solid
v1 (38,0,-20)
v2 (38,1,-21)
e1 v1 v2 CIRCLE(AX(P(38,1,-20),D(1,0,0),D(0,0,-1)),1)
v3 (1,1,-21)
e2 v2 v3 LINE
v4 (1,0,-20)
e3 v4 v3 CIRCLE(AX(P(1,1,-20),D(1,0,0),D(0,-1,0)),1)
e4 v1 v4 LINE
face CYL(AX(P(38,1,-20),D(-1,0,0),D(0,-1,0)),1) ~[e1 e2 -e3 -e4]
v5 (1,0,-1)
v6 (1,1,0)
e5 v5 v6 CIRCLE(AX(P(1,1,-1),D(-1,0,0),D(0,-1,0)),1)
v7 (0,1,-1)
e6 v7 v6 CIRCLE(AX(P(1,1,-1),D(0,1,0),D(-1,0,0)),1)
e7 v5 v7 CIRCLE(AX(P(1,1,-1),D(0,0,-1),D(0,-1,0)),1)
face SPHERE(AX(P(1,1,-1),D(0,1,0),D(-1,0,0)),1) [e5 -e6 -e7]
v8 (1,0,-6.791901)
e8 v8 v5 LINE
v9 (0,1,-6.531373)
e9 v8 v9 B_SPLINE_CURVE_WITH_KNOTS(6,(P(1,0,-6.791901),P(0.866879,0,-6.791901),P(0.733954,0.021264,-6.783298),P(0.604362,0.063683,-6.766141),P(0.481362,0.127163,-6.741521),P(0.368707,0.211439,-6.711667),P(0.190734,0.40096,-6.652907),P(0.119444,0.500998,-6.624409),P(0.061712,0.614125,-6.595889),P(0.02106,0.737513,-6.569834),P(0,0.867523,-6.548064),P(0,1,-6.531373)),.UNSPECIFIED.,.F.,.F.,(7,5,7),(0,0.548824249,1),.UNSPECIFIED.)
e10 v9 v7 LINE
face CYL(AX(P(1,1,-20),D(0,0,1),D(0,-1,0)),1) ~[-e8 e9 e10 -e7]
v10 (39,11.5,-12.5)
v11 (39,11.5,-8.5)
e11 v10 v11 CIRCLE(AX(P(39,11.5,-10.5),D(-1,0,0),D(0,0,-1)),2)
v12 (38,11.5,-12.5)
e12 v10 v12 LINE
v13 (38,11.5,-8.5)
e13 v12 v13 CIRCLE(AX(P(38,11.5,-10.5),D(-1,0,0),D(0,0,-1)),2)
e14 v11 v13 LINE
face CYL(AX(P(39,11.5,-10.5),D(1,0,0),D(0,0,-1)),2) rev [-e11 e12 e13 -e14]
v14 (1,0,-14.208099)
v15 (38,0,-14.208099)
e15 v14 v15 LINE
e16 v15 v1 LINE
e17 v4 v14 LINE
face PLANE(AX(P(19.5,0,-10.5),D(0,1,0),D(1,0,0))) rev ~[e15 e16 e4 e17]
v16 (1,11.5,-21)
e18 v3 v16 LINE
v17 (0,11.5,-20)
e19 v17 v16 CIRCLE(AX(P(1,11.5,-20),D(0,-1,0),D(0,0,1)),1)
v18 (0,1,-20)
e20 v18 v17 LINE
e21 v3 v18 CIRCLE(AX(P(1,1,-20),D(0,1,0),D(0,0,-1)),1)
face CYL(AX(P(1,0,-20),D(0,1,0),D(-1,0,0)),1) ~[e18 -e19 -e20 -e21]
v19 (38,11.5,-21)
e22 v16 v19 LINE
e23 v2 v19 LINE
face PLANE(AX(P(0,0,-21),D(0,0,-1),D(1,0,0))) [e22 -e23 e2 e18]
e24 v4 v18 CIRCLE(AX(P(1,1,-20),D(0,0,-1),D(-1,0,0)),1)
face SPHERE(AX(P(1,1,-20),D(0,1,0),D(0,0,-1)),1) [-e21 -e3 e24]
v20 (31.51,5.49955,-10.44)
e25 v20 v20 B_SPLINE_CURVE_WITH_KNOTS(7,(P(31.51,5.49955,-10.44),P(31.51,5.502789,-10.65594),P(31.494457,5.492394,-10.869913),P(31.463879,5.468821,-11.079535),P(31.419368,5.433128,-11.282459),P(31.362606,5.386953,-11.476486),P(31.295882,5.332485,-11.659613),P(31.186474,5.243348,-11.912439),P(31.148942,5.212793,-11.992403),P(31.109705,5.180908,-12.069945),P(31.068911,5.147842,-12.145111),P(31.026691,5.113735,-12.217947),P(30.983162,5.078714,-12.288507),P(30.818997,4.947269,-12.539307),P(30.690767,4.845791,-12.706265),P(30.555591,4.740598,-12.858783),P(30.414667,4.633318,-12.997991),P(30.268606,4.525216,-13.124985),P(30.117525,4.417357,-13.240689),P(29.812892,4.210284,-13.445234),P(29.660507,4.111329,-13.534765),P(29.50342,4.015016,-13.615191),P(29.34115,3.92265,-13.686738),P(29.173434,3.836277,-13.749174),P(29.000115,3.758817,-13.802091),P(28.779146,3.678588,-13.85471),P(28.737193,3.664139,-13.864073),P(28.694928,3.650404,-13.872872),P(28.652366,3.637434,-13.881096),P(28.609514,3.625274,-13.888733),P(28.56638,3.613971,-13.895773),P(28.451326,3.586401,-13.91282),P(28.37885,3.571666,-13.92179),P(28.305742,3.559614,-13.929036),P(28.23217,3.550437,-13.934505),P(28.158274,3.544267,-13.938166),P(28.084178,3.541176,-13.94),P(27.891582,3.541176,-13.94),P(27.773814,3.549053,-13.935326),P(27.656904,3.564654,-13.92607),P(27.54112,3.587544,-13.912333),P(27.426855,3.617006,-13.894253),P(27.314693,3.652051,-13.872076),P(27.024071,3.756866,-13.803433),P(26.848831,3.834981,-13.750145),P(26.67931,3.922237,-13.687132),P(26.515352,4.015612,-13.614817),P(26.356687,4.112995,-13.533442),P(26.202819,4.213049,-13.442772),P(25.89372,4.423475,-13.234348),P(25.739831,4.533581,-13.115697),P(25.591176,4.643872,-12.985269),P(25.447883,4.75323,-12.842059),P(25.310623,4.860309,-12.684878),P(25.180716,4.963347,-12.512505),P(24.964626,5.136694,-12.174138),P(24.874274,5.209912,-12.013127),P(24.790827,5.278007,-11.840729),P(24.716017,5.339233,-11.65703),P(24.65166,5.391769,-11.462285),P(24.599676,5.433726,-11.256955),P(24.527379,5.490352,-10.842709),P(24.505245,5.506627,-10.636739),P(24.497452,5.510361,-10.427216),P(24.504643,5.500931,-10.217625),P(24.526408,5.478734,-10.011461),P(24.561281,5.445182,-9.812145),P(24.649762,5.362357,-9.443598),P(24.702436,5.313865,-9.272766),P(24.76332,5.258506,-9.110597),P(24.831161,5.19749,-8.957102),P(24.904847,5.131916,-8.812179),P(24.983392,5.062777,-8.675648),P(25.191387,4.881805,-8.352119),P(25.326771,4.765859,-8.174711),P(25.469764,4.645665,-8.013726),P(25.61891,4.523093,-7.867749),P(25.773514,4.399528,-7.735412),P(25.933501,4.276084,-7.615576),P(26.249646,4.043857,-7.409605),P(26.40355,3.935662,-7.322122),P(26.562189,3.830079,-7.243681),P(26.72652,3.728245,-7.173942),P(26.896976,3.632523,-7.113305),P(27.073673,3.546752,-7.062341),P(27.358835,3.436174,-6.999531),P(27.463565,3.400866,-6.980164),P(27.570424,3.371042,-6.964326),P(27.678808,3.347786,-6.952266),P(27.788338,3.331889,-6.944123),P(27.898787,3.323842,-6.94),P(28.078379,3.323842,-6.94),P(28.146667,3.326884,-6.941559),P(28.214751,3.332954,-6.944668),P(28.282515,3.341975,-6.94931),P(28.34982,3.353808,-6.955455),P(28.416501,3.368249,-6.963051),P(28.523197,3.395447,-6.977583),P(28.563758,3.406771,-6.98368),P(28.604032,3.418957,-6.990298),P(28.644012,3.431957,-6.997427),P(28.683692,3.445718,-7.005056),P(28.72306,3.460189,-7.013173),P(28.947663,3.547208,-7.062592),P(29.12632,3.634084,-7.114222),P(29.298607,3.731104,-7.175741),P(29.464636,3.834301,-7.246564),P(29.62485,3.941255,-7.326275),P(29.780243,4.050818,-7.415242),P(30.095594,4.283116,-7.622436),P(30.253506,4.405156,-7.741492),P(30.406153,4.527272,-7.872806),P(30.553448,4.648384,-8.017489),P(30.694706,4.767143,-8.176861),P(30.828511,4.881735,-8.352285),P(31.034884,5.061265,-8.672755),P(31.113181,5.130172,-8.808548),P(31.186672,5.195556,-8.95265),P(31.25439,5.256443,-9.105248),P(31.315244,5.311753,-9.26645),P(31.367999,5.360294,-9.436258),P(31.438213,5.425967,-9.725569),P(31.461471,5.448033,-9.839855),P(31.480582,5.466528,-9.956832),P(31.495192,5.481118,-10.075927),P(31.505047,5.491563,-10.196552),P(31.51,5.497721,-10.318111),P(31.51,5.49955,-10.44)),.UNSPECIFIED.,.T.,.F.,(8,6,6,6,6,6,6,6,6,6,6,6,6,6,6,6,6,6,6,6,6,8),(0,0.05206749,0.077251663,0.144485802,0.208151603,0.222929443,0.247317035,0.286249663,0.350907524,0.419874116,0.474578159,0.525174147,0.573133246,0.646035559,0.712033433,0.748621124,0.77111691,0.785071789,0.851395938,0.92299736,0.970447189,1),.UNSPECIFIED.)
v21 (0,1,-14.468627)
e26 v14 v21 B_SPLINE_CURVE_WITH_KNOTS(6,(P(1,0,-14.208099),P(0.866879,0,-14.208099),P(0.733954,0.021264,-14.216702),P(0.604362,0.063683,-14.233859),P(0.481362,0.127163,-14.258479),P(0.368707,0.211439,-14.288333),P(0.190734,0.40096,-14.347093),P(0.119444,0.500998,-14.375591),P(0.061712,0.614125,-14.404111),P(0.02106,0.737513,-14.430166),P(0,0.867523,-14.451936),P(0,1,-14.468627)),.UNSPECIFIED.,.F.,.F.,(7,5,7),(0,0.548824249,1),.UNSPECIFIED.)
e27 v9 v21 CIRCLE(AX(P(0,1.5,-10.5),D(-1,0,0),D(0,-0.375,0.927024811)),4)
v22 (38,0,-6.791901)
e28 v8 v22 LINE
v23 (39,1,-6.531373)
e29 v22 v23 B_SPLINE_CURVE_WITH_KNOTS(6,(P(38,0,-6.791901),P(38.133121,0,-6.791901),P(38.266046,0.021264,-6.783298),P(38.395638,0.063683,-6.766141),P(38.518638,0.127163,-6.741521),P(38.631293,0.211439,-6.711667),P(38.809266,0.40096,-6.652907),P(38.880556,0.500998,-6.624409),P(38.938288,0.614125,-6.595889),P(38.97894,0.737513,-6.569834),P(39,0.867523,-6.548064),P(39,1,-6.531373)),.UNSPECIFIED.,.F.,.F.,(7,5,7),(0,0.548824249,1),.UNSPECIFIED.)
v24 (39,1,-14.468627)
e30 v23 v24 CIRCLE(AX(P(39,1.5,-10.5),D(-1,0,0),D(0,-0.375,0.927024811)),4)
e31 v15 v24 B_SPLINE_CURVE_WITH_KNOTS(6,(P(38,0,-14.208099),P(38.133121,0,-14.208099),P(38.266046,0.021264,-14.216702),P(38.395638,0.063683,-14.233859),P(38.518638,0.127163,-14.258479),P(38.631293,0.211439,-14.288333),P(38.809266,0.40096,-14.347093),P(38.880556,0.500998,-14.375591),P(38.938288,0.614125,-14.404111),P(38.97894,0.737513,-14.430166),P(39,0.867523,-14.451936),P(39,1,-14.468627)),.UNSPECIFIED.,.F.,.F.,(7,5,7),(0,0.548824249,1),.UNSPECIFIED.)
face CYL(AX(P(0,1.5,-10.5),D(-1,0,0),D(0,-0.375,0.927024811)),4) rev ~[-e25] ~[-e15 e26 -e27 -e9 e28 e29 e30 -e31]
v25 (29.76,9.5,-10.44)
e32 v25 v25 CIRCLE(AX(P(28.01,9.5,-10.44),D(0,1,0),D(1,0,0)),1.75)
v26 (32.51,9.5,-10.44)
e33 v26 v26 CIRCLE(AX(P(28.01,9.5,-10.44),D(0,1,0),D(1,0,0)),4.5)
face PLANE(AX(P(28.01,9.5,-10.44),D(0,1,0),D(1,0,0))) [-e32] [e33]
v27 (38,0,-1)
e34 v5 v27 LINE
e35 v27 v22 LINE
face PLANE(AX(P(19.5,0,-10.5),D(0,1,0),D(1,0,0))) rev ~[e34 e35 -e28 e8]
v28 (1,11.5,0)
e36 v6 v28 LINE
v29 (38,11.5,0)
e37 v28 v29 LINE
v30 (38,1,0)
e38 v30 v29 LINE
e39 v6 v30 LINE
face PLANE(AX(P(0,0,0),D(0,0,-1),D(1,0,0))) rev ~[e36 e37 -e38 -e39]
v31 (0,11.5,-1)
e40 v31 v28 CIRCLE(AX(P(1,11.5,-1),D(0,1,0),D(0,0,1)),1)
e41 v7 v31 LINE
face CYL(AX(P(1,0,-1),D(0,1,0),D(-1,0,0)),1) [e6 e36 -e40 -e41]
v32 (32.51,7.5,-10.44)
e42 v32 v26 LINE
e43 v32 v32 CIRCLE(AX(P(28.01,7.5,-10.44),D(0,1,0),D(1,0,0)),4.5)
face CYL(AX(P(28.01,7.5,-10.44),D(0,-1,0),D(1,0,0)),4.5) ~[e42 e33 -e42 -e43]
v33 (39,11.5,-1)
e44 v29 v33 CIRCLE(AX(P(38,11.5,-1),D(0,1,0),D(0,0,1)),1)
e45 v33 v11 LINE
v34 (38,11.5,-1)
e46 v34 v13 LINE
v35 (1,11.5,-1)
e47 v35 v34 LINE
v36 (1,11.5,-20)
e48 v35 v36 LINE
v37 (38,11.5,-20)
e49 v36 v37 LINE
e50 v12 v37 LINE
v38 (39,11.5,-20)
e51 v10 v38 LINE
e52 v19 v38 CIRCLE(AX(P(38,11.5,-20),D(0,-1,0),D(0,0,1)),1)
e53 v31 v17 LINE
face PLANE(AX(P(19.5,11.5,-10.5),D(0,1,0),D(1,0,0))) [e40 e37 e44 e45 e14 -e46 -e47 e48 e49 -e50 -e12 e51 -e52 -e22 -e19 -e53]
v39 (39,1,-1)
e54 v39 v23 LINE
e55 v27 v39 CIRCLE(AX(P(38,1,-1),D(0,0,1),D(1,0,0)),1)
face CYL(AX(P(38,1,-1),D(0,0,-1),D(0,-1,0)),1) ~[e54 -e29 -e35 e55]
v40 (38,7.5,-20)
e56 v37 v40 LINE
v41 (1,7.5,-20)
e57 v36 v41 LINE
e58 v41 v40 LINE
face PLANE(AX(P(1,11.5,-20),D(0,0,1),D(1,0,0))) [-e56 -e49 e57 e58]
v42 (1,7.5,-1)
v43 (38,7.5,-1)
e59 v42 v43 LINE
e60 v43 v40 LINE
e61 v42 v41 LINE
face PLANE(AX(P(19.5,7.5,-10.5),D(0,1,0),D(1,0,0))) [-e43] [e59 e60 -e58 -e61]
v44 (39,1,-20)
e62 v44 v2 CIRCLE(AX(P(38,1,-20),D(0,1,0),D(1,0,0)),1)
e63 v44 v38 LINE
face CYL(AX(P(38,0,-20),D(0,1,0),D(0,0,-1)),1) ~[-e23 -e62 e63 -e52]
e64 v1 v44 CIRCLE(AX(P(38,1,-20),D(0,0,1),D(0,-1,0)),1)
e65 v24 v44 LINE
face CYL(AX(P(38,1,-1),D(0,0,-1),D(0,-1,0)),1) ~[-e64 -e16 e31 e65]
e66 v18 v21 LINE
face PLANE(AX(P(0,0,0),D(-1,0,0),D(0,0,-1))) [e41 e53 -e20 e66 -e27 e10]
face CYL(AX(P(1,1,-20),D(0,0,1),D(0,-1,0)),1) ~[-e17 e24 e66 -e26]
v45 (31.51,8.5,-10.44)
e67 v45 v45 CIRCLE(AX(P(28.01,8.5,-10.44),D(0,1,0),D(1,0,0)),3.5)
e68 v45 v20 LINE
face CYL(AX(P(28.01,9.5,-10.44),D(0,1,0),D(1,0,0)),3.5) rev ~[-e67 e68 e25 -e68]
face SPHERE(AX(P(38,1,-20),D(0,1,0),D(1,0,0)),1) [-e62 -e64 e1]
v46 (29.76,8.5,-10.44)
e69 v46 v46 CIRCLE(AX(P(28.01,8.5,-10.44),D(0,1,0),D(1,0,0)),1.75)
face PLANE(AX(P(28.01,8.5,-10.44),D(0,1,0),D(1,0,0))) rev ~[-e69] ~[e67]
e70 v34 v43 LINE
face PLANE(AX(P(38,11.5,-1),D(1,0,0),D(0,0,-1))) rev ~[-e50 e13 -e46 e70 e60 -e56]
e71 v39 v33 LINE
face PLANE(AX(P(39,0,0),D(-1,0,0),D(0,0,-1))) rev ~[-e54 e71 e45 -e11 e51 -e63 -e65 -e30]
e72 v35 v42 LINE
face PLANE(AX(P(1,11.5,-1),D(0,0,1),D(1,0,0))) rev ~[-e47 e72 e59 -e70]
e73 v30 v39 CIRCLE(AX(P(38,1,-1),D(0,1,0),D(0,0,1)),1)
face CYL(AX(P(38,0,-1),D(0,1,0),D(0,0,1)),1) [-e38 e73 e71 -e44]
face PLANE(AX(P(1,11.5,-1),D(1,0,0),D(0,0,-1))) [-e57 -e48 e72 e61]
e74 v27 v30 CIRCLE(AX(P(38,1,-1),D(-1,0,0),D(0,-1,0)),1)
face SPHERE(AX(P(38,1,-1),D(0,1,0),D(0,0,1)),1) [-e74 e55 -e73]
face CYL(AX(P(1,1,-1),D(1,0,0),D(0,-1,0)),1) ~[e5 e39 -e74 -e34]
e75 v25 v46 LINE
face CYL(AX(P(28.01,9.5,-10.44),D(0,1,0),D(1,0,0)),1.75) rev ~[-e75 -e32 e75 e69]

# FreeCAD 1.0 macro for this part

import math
import FreeCAD as App
import Part
import Sketcher

V = App.Vector


def edges_at(feature, points):
    """Names of the edges that pass closest to the given points."""
    edges = feature.Shape.Edges
    near = lambda p: min(range(len(edges)), key=lambda i: edges[i].distToShape(Part.Vertex(*p))[0])
    return sorted({f"Edge{near(p) + 1}" for p in points})


def add_polygon(sketch, points):
    """Adds a closed chain of lines whose ends are joined by coincident constraints."""
    first, n = sketch.GeometryCount, len(points)
    for a, b in zip(points, points[1:] + points[:1]):
        sketch.addGeometry(Part.LineSegment(App.Vector(*a, 0), App.Vector(*b, 0)), False)
    for i in range(n):
        sketch.addConstraint(Sketcher.Constraint("Coincident", first + i, 2, first + (i + 1) % n, 1))

doc = App.newDocument("Part")
body = doc.addObject("PartDesign::Body", "Body")

# Sketch on XZ plane
sketch1 = body.newObject("Sketcher::SketchObject", "Sketch")
sketch1.AttachmentSupport = (doc.getObject("XZ_Plane"), [""])
sketch1.MapMode = "FlatFace"
add_polygon(sketch1, [(0, -21), (0, 0), (39, 0), (39, -21)])  # lines 0-3
sketch1.addConstraint(Sketcher.Constraint("Vertical", 0))
sketch1.addConstraint(Sketcher.Constraint("Horizontal", 1))
sketch1.addConstraint(Sketcher.Constraint("Vertical", 2))
sketch1.addConstraint(Sketcher.Constraint("Horizontal", 3))
sketch1.addConstraint(Sketcher.Constraint("Coincident", 0, 2, -1, 1))
sketch1.addConstraint(Sketcher.Constraint("DistanceX", 1, 1, 1, 2, 39.0))
sketch1.addConstraint(Sketcher.Constraint("DistanceY", 0, 1, 0, 2, 21.0))
pad1 = body.newObject("PartDesign::Pad", "Pad")
pad1.Profile = sketch1
pad1.Length = 11.5
pad1.Reversed = True

# Sketch on XZ plane
sketch2 = body.newObject("Sketcher::SketchObject", "Sketch001")
sketch2.AttachmentSupport = (doc.getObject("XZ_Plane"), [""])
sketch2.MapMode = "FlatFace"
sketch2.AttachmentOffset = App.Placement(V(0, 0, -11.5), App.Rotation())
add_polygon(sketch2, [(1, -20), (1, -1), (38, -1), (38, -20)])  # lines 0-3
sketch2.addConstraint(Sketcher.Constraint("Vertical", 0))
sketch2.addConstraint(Sketcher.Constraint("Horizontal", 1))
sketch2.addConstraint(Sketcher.Constraint("Vertical", 2))
sketch2.addConstraint(Sketcher.Constraint("Horizontal", 3))
sketch2.addConstraint(Sketcher.Constraint("DistanceX", 1, 1, 1, 2, 37.0))
sketch2.addConstraint(Sketcher.Constraint("DistanceY", 0, 1, 0, 2, 19.0))
sketch2.addConstraint(Sketcher.Constraint("DistanceX", -1, 1, 0, 2, 1.0))
sketch2.addConstraint(Sketcher.Constraint("DistanceY", 0, 2, -1, 1, 1.0))
pocket1 = body.newObject("PartDesign::Pocket", "Pocket")
pocket1.Profile = sketch2
pocket1.Length = 4
pocket1.Reversed = True
doc.recompute()

fillet = body.newObject("PartDesign::Fillet", "Fillet")
fillet.Base = (pocket1, edges_at(pocket1, [
    (0, 5.75, -21),
    (39, 5.75, -21),
    (39, 5.75, 0),
    (0, 5.75, 0),
]))
fillet.Radius = 1
doc.recompute()

fillet2 = body.newObject("PartDesign::Fillet", "Fillet001")
fillet2.Base = (fillet, edges_at(fillet, [
    (19.5, 0, 0),
    (0, 0, -10.5),
    (19.5, 0, -21),
    (39, 0, -10.5),
    (0.293, 0, -20.707),
    (38.707, 0, -20.707),
    (38.707, 0, -0.293),
    (0.293, 0, -0.293),
]))
fillet2.Radius = 1

# Sketch on XZ plane
sketch3 = body.newObject("Sketcher::SketchObject", "Sketch002")
sketch3.AttachmentSupport = (doc.getObject("XZ_Plane"), [""])
sketch3.MapMode = "FlatFace"
sketch3.AttachmentOffset = App.Placement(V(0, 0, -7.5), App.Rotation())
sketch3.addGeometry(Part.Circle(V(28, -10.4, 0), V(0, 0, 1), 4.5), False)
sketch3.addConstraint(Sketcher.Constraint("Diameter", 0, 9.0))
sketch3.addConstraint(Sketcher.Constraint("DistanceX", -1, 1, 0, 3, 28.01))
sketch3.addConstraint(Sketcher.Constraint("DistanceY", 0, 3, -1, 1, 10.44))
pad2 = body.newObject("PartDesign::Pad", "Pad001")
pad2.Profile = sketch3
pad2.Length = 2
pad2.Reversed = True

# Sketch on XZ plane
sketch4 = body.newObject("Sketcher::SketchObject", "Sketch003")
sketch4.AttachmentSupport = (doc.getObject("XZ_Plane"), [""])
sketch4.MapMode = "FlatFace"
sketch4.AttachmentOffset = App.Placement(V(0, 0, -9.5), App.Rotation())
sketch4.addGeometry(Part.Circle(V(28, -10.4, 0), V(0, 0, 1), 3.5), False)
sketch4.addConstraint(Sketcher.Constraint("Diameter", 0, 7.0))
sketch4.addConstraint(Sketcher.Constraint("DistanceX", -1, 1, 0, 3, 28.01))
sketch4.addConstraint(Sketcher.Constraint("DistanceY", 0, 3, -1, 1, 10.44))
pocket2 = body.newObject("PartDesign::Pocket", "Pocket001")
pocket2.Profile = sketch4
pocket2.Length = 9.5
pocket2.Reversed = True

# Sketch on XZ plane
sketch5 = body.newObject("Sketcher::SketchObject", "Sketch004")
sketch5.AttachmentSupport = (doc.getObject("XZ_Plane"), [""])
sketch5.MapMode = "FlatFace"
sketch5.AttachmentOffset = App.Placement(V(0, 0, -9.5), App.Rotation())
sketch5.addGeometry(Part.Circle(V(28, -10.4, 0), V(0, 0, 1), 4.5), False)
sketch5.addConstraint(Sketcher.Constraint("Diameter", 0, 9.0))
sketch5.addConstraint(Sketcher.Constraint("DistanceX", -1, 1, 0, 3, 28.01))
sketch5.addConstraint(Sketcher.Constraint("DistanceY", 0, 3, -1, 1, 10.44))
pad3 = body.newObject("PartDesign::Pad", "Pad002")
pad3.Profile = sketch5
pad3.Length = 1

# Sketch on XZ plane
sketch6 = body.newObject("Sketcher::SketchObject", "Sketch005")
sketch6.AttachmentSupport = (doc.getObject("XZ_Plane"), [""])
sketch6.MapMode = "FlatFace"
sketch6.AttachmentOffset = App.Placement(V(0, 0, -9.5), App.Rotation())
sketch6.addGeometry(Part.Circle(V(28, -10.4, 0), V(0, 0, 1), 1.8), False)
sketch6.addConstraint(Sketcher.Constraint("Diameter", 0, 3.5))
sketch6.addConstraint(Sketcher.Constraint("DistanceX", -1, 1, 0, 3, 28.01))
sketch6.addConstraint(Sketcher.Constraint("DistanceY", 0, 3, -1, 1, 10.44))
pocket3 = body.newObject("PartDesign::Pocket", "Pocket002")
pocket3.Profile = sketch6
pocket3.Length = 1
pocket3.Reversed = True

# Sketch on YZ plane
sketch7 = body.newObject("Sketcher::SketchObject", "Sketch006")
sketch7.AttachmentSupport = (doc.getObject("YZ_Plane"), [""])
sketch7.MapMode = "FlatFace"
sketch7.AttachmentOffset = App.Placement(V(0, 0, 39), App.Rotation())
sketch7.addGeometry(Part.LineSegment(V(11.5, -12.5, 0), V(11.5, -8.5, 0)), False)
sketch7.addGeometry(Part.ArcOfCircle(Part.Circle(V(11.5, -10.5, 0), V(0, 0, 1), 2), math.radians(90), math.radians(270)), False)
sketch7.addConstraint(Sketcher.Constraint("Coincident", 0, 1, 1, 2))
sketch7.addConstraint(Sketcher.Constraint("Coincident", 1, 1, 0, 2))
sketch7.addConstraint(Sketcher.Constraint("Vertical", 0))
sketch7.addConstraint(Sketcher.Constraint("Vertical", 1, 3, 0, 1))
sketch7.addConstraint(Sketcher.Constraint("Radius", 1, 2.0))
sketch7.addConstraint(Sketcher.Constraint("DistanceX", -1, 1, 1, 3, 11.5))
sketch7.addConstraint(Sketcher.Constraint("DistanceY", 1, 3, -1, 1, 10.5))
pocket4 = body.newObject("PartDesign::Pocket", "Pocket003")
pocket4.Profile = sketch7
pocket4.Length = 1

# Sketch on YZ plane
sketch8 = body.newObject("Sketcher::SketchObject", "Sketch007")
sketch8.AttachmentSupport = (doc.getObject("YZ_Plane"), [""])
sketch8.MapMode = "FlatFace"
sketch8.addGeometry(Part.LineSegment(V(0, -14.2, 0), V(0, -6.8, 0)), False)
sketch8.addGeometry(Part.ArcOfCircle(Part.Circle(V(1.5, -10.5, 0), V(0, 0, 1), 4), math.radians(-112), math.radians(112)), False)
sketch8.addConstraint(Sketcher.Constraint("Coincident", 0, 1, 1, 1))
sketch8.addConstraint(Sketcher.Constraint("Coincident", 1, 2, 0, 2))
sketch8.addConstraint(Sketcher.Constraint("Vertical", 0))
sketch8.addConstraint(Sketcher.Constraint("PointOnObject", 0, 1, -2))
sketch8.addConstraint(Sketcher.Constraint("Radius", 1, 4.0))
sketch8.addConstraint(Sketcher.Constraint("DistanceX", -1, 1, 1, 3, 1.5))
sketch8.addConstraint(Sketcher.Constraint("DistanceY", 1, 3, -1, 1, 10.5))
pocket5 = body.newObject("PartDesign::Pocket", "Pocket004")
pocket5.Profile = sketch8
pocket5.Length = 39
pocket5.Reversed = True

doc.recompute()
